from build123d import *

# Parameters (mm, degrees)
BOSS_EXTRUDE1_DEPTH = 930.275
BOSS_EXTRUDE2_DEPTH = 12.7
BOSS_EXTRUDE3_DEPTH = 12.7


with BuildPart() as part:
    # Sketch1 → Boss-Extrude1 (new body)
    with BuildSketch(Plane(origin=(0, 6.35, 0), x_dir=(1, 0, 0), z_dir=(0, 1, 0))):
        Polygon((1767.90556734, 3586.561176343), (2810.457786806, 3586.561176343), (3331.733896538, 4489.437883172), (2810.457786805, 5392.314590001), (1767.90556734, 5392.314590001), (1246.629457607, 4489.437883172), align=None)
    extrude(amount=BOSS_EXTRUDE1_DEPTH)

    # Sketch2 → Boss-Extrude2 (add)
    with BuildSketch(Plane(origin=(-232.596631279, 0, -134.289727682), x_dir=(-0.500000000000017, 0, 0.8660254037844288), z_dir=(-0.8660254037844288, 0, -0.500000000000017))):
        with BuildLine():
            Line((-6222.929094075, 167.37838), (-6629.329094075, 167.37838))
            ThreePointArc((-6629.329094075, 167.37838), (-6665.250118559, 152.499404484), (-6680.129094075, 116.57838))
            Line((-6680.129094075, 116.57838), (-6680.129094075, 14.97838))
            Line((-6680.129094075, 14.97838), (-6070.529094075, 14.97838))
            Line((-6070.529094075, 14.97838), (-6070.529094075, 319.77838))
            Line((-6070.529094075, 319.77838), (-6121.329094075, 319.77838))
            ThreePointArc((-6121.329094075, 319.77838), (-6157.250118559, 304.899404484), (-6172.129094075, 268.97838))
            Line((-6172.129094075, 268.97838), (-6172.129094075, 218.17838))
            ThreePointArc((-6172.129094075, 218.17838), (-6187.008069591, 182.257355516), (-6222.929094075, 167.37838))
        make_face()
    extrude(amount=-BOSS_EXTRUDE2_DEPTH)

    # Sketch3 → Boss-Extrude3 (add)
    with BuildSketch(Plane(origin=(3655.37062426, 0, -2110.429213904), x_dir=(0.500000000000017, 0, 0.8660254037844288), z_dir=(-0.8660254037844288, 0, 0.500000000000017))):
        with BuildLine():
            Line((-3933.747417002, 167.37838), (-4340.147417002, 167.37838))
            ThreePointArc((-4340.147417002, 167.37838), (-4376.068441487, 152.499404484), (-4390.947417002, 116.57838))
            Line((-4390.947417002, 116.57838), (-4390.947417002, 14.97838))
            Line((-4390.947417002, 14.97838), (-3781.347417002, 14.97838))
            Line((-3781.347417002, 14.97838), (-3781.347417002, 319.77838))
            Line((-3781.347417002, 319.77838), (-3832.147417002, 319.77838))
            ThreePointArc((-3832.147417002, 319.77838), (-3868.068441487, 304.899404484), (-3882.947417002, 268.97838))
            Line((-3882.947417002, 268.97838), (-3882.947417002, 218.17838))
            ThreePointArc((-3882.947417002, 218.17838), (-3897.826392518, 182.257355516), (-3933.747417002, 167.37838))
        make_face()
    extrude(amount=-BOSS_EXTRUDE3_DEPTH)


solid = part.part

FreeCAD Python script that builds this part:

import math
import FreeCAD as App
import Part
import Sketcher
Q = App.Units.Quantity

doc = App.newDocument("Part")
body = doc.addObject("PartDesign::Body", "Body")

sketch1 = body.newObject("Sketcher::SketchObject", "Sketch")
sketch1.AttachmentSupport = (doc.getObject("XZ_Plane"), [""])
sketch1.MapMode = "FlatFace"
sketch1.AttachmentOffset = App.Placement(App.Vector(0, 0, -0.25 * 25.4), App.Rotation())
sketch1.addGeometry(Part.LineSegment(App.Vector(1768, -3587, 0), App.Vector(2810, -3587, 0)), False)
sketch1.addGeometry(Part.LineSegment(App.Vector(2810, -3587, 0), App.Vector(3332, -4489, 0)), False)
sketch1.addGeometry(Part.LineSegment(App.Vector(3332, -4489, 0), App.Vector(2810, -5392, 0)), False)
sketch1.addGeometry(Part.LineSegment(App.Vector(2810, -5392, 0), App.Vector(1768, -5392, 0)), False)
sketch1.addGeometry(Part.LineSegment(App.Vector(1768, -5392, 0), App.Vector(1247, -4489, 0)), False)
sketch1.addGeometry(Part.LineSegment(App.Vector(1247, -4489, 0), App.Vector(1768, -3587, 0)), False)
sketch1.addConstraint(Sketcher.Constraint("Coincident", 0, 2, 1, 1))
sketch1.addConstraint(Sketcher.Constraint("Coincident", 1, 2, 2, 1))
sketch1.addConstraint(Sketcher.Constraint("Coincident", 2, 2, 3, 1))
sketch1.addConstraint(Sketcher.Constraint("Coincident", 3, 2, 4, 1))
sketch1.addConstraint(Sketcher.Constraint("Coincident", 4, 2, 5, 1))
sketch1.addConstraint(Sketcher.Constraint("Coincident", 5, 2, 0, 1))
sketch1.addConstraint(Sketcher.Constraint("Horizontal", 0))
sketch1.addConstraint(Sketcher.Constraint("Horizontal", 3))
sketch1.addConstraint(Sketcher.Constraint("Parallel", 1, 4))
sketch1.addConstraint(Sketcher.Constraint("Parallel", 2, 5))
sketch1.addConstraint(Sketcher.Constraint("Horizontal", 1, 2, 4, 2))
sketch1.addConstraint(Sketcher.Constraint("Vertical", 0, 2, 2, 2))
sketch1.addConstraint(Sketcher.Constraint("Vertical", 3, 2, 5, 2))
sketch1.addConstraint(Sketcher.Constraint("Angle", 1, Q("-60 deg")))
sketch1.addConstraint(Sketcher.Constraint("DistanceX", -1, 1, 4, 2, Q("49.0798999 in")))
sketch1.addConstraint(Sketcher.Constraint("DistanceX", 0, 1, 0, 2, Q("1042.552219 mm")))
sketch1.addConstraint(Sketcher.Constraint("Distance", 1, Q("1042.552219 mm")))
sketch1.addConstraint(Sketcher.Constraint("DistanceY", 2, 2, -1, 1, Q("5392.31459 mm")))
pad1 = body.newObject("PartDesign::Pad", "Pad")
pad1.Profile = sketch1
pad1.Length = Q("36.625 in")
pad1.Reversed = True

sketch2 = body.newObject("Sketcher::SketchObject", "Sketch001")
sketch2.Placement = App.Placement(App.Vector(-232.596631, 0, -134.289728), App.Rotation(App.Vector(-0.5, 0, 0.866025404), App.Vector(0, 1, 0), App.Vector(-0.866025404, 0, -0.5), "ZXY"))
sketch2.addGeometry(Part.LineSegment(App.Vector(-6223, 167, 0), App.Vector(-6629, 167, 0)), False)
sketch2.addGeometry(Part.ArcOfCircle(Part.Circle(App.Vector(-6629, 117, 0), App.Vector(0, 0, 1), 51), math.radians(90), math.radians(180)), False)
sketch2.addGeometry(Part.LineSegment(App.Vector(-6680, 117, 0), App.Vector(-6680, 15, 0)), False)
sketch2.addGeometry(Part.LineSegment(App.Vector(-6680, 15, 0), App.Vector(-6071, 15, 0)), False)
sketch2.addGeometry(Part.LineSegment(App.Vector(-6071, 15, 0), App.Vector(-6071, 320, 0)), False)
sketch2.addGeometry(Part.LineSegment(App.Vector(-6071, 320, 0), App.Vector(-6121, 320, 0)), False)
sketch2.addGeometry(Part.ArcOfCircle(Part.Circle(App.Vector(-6121, 269, 0), App.Vector(0, 0, 1), 51), math.radians(90), math.radians(180)), False)
sketch2.addGeometry(Part.LineSegment(App.Vector(-6172, 269, 0), App.Vector(-6172, 218, 0)), False)
sketch2.addGeometry(Part.ArcOfCircle(Part.Circle(App.Vector(-6223, 218, 0), App.Vector(0, 0, 1), 51), math.radians(-90), math.radians(0)), False)
sketch2.addConstraint(Sketcher.Constraint("Tangent", 0, 2, 1, 1))
sketch2.addConstraint(Sketcher.Constraint("Tangent", 1, 2, 2, 1))
sketch2.addConstraint(Sketcher.Constraint("Coincident", 2, 2, 3, 1))
sketch2.addConstraint(Sketcher.Constraint("Coincident", 3, 2, 4, 1))
sketch2.addConstraint(Sketcher.Constraint("Coincident", 4, 2, 5, 1))
sketch2.addConstraint(Sketcher.Constraint("Tangent", 5, 2, 6, 1))
sketch2.addConstraint(Sketcher.Constraint("Tangent", 6, 2, 7, 1))
sketch2.addConstraint(Sketcher.Constraint("Tangent", 7, 2, 8, 2))
sketch2.addConstraint(Sketcher.Constraint("Tangent", 8, 1, 0, 1))
sketch2.addConstraint(Sketcher.Constraint("Horizontal", 0))
sketch2.addConstraint(Sketcher.Constraint("Vertical", 2))
sketch2.addConstraint(Sketcher.Constraint("Horizontal", 3))
sketch2.addConstraint(Sketcher.Constraint("Vertical", 4))
sketch2.addConstraint(Sketcher.Constraint("Horizontal", 5))
sketch2.addConstraint(Sketcher.Constraint("Vertical", 7))
sketch2.addConstraint(Sketcher.Constraint("Equal", 1, 6))
sketch2.addConstraint(Sketcher.Constraint("Equal", 6, 8))
sketch2.addConstraint(Sketcher.Constraint("Equal", 5, 7))
sketch2.addConstraint(Sketcher.Constraint("Radius", 1, Q("2 in")))
sketch2.addConstraint(Sketcher.Constraint("DistanceX", 0, 2, 0, 1, Q("16 in")))
sketch2.addConstraint(Sketcher.Constraint("DistanceX", 3, 1, 3, 2, Q("24 in")))
sketch2.addConstraint(Sketcher.Constraint("DistanceY", 2, 2, 2, 1, Q("4 in")))
sketch2.addConstraint(Sketcher.Constraint("DistanceY", -1, 1, 1, 3, Q("4.5897 in")))
sketch2.addConstraint(Sketcher.Constraint("DistanceX", 1, 3, -1, 1, Q("6629.329097 mm")))
pad2 = body.newObject("PartDesign::Pad", "Pad001")
pad2.Profile = sketch2
pad2.Length = Q("0.5 in")
pad2.Reversed = True

sketch3 = body.newObject("Sketcher::SketchObject", "Sketch002")
sketch3.Placement = App.Placement(App.Vector(3655.370624, 0, -2110.429214), App.Rotation(App.Vector(0.5, 0, 0.866025404), App.Vector(0, 1, 0), App.Vector(-0.866025404, 0, 0.5), "ZXY"))
sketch3.addGeometry(Part.LineSegment(App.Vector(-3934, 167, 0), App.Vector(-4340, 167, 0)), False)
sketch3.addGeometry(Part.ArcOfCircle(Part.Circle(App.Vector(-4340, 117, 0), App.Vector(0, 0, 1), 51), math.radians(90), math.radians(180)), False)
sketch3.addGeometry(Part.LineSegment(App.Vector(-4391, 117, 0), App.Vector(-4391, 15, 0)), False)
sketch3.addGeometry(Part.LineSegment(App.Vector(-4391, 15, 0), App.Vector(-3781, 15, 0)), False)
sketch3.addGeometry(Part.LineSegment(App.Vector(-3781, 15, 0), App.Vector(-3781, 320, 0)), False)
sketch3.addGeometry(Part.LineSegment(App.Vector(-3781, 320, 0), App.Vector(-3832, 320, 0)), False)
sketch3.addGeometry(Part.ArcOfCircle(Part.Circle(App.Vector(-3832, 269, 0), App.Vector(0, 0, 1), 51), math.radians(90), math.radians(180)), False)
sketch3.addGeometry(Part.LineSegment(App.Vector(-3883, 269, 0), App.Vector(-3883, 218, 0)), False)
sketch3.addGeometry(Part.ArcOfCircle(Part.Circle(App.Vector(-3934, 218, 0), App.Vector(0, 0, 1), 51), math.radians(-90), math.radians(0)), False)
sketch3.addConstraint(Sketcher.Constraint("Tangent", 0, 2, 1, 1))
sketch3.addConstraint(Sketcher.Constraint("Tangent", 1, 2, 2, 1))
sketch3.addConstraint(Sketcher.Constraint("Coincident", 2, 2, 3, 1))
sketch3.addConstraint(Sketcher.Constraint("Coincident", 3, 2, 4, 1))
sketch3.addConstraint(Sketcher.Constraint("Coincident", 4, 2, 5, 1))
sketch3.addConstraint(Sketcher.Constraint("Tangent", 5, 2, 6, 1))
sketch3.addConstraint(Sketcher.Constraint("Tangent", 6, 2, 7, 1))
sketch3.addConstraint(Sketcher.Constraint("Tangent", 7, 2, 8, 2))
sketch3.addConstraint(Sketcher.Constraint("Tangent", 8, 1, 0, 1))
sketch3.addConstraint(Sketcher.Constraint("Horizontal", 0))
sketch3.addConstraint(Sketcher.Constraint("Vertical", 2))
sketch3.addConstraint(Sketcher.Constraint("Horizontal", 3))
sketch3.addConstraint(Sketcher.Constraint("Vertical", 4))
sketch3.addConstraint(Sketcher.Constraint("Horizontal", 5))
sketch3.addConstraint(Sketcher.Constraint("Vertical", 7))
sketch3.addConstraint(Sketcher.Constraint("Equal", 1, 6))
sketch3.addConstraint(Sketcher.Constraint("Equal", 6, 8))
sketch3.addConstraint(Sketcher.Constraint("Equal", 5, 7))
sketch3.addConstraint(Sketcher.Constraint("Radius", 1, Q("2 in")))
sketch3.addConstraint(Sketcher.Constraint("DistanceX", 0, 2, 0, 1, Q("16 in")))
sketch3.addConstraint(Sketcher.Constraint("DistanceX", 3, 1, 3, 2, Q("24 in")))
sketch3.addConstraint(Sketcher.Constraint("DistanceY", 2, 2, 2, 1, Q("4 in")))
sketch3.addConstraint(Sketcher.Constraint("DistanceY", -1, 1, 1, 3, Q("4.5897 in")))
sketch3.addConstraint(Sketcher.Constraint("DistanceX", 1, 3, -1, 1, Q("4340.147419 mm")))
pad3 = body.newObject("PartDesign::Pad", "Pad002")
pad3.Profile = sketch3
pad3.Length = Q("0.5 in")
pad3.Reversed = True

doc.recompute()
